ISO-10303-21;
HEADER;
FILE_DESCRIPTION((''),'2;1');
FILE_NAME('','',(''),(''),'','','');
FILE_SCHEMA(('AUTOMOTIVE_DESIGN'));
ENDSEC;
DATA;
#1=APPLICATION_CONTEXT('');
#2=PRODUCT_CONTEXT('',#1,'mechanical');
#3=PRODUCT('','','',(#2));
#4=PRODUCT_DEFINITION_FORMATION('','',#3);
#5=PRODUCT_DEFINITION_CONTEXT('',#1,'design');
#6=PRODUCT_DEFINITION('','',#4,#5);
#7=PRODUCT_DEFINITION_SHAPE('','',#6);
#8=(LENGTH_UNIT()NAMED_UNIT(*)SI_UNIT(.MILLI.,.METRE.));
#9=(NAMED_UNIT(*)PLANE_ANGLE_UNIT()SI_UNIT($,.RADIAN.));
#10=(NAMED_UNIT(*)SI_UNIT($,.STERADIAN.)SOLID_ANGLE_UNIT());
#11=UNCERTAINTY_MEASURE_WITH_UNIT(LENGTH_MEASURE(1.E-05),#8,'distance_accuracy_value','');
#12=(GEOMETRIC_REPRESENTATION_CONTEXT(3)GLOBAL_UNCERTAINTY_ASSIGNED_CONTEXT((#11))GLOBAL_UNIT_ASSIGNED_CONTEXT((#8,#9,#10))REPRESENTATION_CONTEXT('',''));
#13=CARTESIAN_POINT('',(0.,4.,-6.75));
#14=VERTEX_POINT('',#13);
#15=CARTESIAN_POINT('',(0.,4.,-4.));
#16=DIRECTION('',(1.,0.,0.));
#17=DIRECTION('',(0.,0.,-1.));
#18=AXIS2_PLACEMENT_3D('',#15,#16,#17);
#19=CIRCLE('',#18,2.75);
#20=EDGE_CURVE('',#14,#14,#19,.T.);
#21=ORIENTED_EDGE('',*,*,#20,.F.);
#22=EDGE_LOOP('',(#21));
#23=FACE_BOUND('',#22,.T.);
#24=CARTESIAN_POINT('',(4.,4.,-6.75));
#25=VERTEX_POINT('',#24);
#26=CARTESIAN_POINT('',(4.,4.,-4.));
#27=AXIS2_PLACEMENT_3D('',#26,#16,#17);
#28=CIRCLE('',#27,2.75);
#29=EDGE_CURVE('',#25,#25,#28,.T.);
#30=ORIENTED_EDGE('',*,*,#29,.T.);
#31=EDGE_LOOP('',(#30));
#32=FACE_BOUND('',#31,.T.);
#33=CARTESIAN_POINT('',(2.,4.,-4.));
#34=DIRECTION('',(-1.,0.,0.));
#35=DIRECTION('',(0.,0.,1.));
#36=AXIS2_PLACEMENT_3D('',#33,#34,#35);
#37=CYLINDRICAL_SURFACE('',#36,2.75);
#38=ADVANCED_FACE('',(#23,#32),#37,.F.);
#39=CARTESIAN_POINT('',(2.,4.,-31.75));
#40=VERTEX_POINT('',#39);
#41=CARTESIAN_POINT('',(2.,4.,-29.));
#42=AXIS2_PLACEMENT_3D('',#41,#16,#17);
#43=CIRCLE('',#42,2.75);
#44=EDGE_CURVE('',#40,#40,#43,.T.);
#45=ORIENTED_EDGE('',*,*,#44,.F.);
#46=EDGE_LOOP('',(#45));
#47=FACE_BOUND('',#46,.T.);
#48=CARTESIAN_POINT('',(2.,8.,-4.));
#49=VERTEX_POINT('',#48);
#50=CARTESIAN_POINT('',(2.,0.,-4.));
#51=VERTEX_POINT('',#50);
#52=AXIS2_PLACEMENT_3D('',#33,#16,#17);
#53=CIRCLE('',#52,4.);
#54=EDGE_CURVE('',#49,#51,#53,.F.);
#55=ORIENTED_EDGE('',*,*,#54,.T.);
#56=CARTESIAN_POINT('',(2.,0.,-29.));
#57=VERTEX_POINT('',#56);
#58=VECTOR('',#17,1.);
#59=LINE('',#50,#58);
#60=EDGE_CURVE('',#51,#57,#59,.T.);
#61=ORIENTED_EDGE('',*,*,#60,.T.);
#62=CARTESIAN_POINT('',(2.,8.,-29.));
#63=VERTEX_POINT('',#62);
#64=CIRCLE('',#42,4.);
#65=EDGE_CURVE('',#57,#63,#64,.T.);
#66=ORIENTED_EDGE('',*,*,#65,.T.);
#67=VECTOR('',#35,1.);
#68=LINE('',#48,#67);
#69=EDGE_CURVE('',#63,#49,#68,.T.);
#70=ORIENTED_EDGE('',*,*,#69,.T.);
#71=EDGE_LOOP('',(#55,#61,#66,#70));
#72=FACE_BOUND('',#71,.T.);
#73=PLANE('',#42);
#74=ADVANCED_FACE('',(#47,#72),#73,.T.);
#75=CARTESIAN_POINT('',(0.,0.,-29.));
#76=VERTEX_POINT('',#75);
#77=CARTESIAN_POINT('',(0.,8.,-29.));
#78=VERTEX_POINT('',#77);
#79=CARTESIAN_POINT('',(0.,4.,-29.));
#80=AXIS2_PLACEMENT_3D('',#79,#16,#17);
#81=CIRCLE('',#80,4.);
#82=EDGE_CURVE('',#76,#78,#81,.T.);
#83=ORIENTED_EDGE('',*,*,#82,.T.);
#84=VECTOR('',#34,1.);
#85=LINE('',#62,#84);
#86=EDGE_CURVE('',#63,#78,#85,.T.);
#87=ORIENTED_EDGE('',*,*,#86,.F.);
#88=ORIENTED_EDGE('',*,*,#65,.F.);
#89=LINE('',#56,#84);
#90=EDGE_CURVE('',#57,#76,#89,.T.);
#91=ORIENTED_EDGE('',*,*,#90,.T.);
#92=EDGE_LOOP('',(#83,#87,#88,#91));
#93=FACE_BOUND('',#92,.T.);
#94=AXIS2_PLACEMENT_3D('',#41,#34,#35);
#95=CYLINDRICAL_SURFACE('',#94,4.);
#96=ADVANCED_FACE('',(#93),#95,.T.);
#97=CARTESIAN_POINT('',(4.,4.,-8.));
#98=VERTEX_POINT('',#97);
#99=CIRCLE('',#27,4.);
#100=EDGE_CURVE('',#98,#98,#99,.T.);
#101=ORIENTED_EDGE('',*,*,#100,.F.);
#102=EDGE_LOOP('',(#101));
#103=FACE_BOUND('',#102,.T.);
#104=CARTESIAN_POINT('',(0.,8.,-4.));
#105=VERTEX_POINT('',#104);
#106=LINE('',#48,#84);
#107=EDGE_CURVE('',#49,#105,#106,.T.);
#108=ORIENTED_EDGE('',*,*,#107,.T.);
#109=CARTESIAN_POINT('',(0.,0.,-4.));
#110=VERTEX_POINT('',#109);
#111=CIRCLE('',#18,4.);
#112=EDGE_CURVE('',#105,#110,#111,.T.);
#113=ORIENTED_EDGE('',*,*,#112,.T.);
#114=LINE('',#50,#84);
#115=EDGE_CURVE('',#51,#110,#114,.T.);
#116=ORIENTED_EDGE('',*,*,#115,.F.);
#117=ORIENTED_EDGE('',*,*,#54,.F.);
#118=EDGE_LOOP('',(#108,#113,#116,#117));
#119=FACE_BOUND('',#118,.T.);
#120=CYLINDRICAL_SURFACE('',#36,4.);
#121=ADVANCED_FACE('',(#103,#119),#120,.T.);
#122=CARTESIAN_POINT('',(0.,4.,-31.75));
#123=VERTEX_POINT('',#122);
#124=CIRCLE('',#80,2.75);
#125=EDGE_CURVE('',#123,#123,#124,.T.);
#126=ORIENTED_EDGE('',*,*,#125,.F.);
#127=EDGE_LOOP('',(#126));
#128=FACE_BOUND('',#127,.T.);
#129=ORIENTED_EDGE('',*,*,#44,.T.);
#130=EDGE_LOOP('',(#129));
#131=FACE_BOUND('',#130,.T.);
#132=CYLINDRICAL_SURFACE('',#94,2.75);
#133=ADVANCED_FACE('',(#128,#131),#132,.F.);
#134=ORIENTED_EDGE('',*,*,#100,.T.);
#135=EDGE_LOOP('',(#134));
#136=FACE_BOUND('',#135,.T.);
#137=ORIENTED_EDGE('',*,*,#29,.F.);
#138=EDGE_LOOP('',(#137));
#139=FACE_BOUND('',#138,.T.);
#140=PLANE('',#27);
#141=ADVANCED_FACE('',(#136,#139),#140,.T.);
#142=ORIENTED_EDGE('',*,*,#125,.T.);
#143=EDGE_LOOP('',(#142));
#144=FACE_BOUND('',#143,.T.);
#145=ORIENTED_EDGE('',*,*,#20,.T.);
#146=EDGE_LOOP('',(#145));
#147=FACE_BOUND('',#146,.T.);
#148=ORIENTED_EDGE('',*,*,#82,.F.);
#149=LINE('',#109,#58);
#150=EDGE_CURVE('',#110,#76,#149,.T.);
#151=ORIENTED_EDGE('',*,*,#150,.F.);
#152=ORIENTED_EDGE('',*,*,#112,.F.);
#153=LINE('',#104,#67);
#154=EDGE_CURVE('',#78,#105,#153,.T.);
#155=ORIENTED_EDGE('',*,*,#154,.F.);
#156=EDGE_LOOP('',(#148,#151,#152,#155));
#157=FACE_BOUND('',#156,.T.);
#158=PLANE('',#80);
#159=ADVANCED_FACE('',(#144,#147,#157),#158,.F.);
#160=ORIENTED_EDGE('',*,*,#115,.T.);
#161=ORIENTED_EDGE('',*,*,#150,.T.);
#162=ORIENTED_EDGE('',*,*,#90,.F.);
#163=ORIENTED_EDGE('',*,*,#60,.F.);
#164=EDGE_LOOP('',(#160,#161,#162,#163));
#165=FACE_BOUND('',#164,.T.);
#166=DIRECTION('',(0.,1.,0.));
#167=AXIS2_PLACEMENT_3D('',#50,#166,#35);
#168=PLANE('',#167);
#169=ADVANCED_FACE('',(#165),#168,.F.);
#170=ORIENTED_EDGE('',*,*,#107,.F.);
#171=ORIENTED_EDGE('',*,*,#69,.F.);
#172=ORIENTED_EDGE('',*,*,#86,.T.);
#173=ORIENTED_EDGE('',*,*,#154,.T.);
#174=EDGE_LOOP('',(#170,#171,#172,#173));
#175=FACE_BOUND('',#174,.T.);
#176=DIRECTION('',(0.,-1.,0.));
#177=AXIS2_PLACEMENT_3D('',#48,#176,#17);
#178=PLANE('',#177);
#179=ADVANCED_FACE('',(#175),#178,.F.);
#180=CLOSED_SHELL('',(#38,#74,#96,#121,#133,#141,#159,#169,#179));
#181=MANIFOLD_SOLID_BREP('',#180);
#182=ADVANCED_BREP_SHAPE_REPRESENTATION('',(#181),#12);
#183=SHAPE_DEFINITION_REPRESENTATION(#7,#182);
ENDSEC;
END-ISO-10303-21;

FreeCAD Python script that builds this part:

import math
import FreeCAD as App
import Part
import Sketcher
from FreeCAD import Vector

doc = App.newDocument("Part")
body = doc.addObject("PartDesign::Body", "Body")

# Sketch on YZ plane
sketch1 = body.newObject("Sketcher::SketchObject", "Sketch")
sketch1.AttachmentSupport = (doc.getObject("YZ_Plane"), [""])
sketch1.MapMode = "FlatFace"
sketch1.addGeometry([
    Part.LineSegment(Vector(0, -4, 0), Vector(0, -29, 0)),  # 0
    Part.ArcOfCircle(Part.Circle(Vector(4, -29, 0), Vector(0, 0, 1), 4), math.radians(180), math.radians(360)),  # 1
    Part.LineSegment(Vector(8, -29, 0), Vector(8, -4, 0)),  # 2
    Part.ArcOfCircle(Part.Circle(Vector(4, -4, 0), Vector(0, 0, 1), 4), math.radians(0), math.radians(180)),  # 3
    Part.Circle(Vector(4, -4, 0), Vector(0, 0, 1), 2.8),  # 4
    Part.Circle(Vector(4, -29, 0), Vector(0, 0, 1), 2.8),  # 5
], False)
sketch1.addConstraint([
    Sketcher.Constraint("Tangent", 0, 2, 1, 1),
    Sketcher.Constraint("Tangent", 1, 2, 2, 1),
    Sketcher.Constraint("Tangent", 2, 2, 3, 1),
    Sketcher.Constraint("Tangent", 3, 2, 0, 1),
    Sketcher.Constraint("Vertical", 0),
    Sketcher.Constraint("Vertical", 2),
    Sketcher.Constraint("Coincident", 4, 3, 3, 3),
    Sketcher.Constraint("Coincident", 5, 3, 1, 3),
    Sketcher.Constraint("Equal", 4, 5),
    Sketcher.Constraint("PointOnObject", 0, 2, -2),
    Sketcher.Constraint("Radius", 1, 4.0),
    Sketcher.Constraint("Diameter", 4, 5.5),
    Sketcher.Constraint("DistanceY", 0, 2, 0, 1, 25.0),
    Sketcher.Constraint("DistanceY", 1, 3, -1, 1, 29.0),
])
pad1 = body.newObject("PartDesign::Pad", "Pad")
pad1.Profile = sketch1
pad1.Length = 2

# Sketch on YZ plane
sketch2 = body.newObject("Sketcher::SketchObject", "Sketch001")
sketch2.AttachmentSupport = (doc.getObject("YZ_Plane"), [""])
sketch2.MapMode = "FlatFace"
sketch2.addGeometry([
    Part.Circle(Vector(4, -4, 0), Vector(0, 0, 1), 4),
    Part.Circle(Vector(4, -4, 0), Vector(0, 0, 1), 2.8),
], False)
sketch2.addConstraint([
    Sketcher.Constraint("Coincident", 1, 3, 0, 3),
    Sketcher.Constraint("Diameter", 0, 8.0),
    Sketcher.Constraint("Diameter", 1, 5.5),
    Sketcher.Constraint("DistanceX", -1, 1, 0, 3, 4.0),
    Sketcher.Constraint("DistanceY", 0, 3, -1, 1, 4.0),
])
pad2 = body.newObject("PartDesign::Pad", "Pad001")
pad2.Profile = sketch2
pad2.Length = 4

doc.recompute()
